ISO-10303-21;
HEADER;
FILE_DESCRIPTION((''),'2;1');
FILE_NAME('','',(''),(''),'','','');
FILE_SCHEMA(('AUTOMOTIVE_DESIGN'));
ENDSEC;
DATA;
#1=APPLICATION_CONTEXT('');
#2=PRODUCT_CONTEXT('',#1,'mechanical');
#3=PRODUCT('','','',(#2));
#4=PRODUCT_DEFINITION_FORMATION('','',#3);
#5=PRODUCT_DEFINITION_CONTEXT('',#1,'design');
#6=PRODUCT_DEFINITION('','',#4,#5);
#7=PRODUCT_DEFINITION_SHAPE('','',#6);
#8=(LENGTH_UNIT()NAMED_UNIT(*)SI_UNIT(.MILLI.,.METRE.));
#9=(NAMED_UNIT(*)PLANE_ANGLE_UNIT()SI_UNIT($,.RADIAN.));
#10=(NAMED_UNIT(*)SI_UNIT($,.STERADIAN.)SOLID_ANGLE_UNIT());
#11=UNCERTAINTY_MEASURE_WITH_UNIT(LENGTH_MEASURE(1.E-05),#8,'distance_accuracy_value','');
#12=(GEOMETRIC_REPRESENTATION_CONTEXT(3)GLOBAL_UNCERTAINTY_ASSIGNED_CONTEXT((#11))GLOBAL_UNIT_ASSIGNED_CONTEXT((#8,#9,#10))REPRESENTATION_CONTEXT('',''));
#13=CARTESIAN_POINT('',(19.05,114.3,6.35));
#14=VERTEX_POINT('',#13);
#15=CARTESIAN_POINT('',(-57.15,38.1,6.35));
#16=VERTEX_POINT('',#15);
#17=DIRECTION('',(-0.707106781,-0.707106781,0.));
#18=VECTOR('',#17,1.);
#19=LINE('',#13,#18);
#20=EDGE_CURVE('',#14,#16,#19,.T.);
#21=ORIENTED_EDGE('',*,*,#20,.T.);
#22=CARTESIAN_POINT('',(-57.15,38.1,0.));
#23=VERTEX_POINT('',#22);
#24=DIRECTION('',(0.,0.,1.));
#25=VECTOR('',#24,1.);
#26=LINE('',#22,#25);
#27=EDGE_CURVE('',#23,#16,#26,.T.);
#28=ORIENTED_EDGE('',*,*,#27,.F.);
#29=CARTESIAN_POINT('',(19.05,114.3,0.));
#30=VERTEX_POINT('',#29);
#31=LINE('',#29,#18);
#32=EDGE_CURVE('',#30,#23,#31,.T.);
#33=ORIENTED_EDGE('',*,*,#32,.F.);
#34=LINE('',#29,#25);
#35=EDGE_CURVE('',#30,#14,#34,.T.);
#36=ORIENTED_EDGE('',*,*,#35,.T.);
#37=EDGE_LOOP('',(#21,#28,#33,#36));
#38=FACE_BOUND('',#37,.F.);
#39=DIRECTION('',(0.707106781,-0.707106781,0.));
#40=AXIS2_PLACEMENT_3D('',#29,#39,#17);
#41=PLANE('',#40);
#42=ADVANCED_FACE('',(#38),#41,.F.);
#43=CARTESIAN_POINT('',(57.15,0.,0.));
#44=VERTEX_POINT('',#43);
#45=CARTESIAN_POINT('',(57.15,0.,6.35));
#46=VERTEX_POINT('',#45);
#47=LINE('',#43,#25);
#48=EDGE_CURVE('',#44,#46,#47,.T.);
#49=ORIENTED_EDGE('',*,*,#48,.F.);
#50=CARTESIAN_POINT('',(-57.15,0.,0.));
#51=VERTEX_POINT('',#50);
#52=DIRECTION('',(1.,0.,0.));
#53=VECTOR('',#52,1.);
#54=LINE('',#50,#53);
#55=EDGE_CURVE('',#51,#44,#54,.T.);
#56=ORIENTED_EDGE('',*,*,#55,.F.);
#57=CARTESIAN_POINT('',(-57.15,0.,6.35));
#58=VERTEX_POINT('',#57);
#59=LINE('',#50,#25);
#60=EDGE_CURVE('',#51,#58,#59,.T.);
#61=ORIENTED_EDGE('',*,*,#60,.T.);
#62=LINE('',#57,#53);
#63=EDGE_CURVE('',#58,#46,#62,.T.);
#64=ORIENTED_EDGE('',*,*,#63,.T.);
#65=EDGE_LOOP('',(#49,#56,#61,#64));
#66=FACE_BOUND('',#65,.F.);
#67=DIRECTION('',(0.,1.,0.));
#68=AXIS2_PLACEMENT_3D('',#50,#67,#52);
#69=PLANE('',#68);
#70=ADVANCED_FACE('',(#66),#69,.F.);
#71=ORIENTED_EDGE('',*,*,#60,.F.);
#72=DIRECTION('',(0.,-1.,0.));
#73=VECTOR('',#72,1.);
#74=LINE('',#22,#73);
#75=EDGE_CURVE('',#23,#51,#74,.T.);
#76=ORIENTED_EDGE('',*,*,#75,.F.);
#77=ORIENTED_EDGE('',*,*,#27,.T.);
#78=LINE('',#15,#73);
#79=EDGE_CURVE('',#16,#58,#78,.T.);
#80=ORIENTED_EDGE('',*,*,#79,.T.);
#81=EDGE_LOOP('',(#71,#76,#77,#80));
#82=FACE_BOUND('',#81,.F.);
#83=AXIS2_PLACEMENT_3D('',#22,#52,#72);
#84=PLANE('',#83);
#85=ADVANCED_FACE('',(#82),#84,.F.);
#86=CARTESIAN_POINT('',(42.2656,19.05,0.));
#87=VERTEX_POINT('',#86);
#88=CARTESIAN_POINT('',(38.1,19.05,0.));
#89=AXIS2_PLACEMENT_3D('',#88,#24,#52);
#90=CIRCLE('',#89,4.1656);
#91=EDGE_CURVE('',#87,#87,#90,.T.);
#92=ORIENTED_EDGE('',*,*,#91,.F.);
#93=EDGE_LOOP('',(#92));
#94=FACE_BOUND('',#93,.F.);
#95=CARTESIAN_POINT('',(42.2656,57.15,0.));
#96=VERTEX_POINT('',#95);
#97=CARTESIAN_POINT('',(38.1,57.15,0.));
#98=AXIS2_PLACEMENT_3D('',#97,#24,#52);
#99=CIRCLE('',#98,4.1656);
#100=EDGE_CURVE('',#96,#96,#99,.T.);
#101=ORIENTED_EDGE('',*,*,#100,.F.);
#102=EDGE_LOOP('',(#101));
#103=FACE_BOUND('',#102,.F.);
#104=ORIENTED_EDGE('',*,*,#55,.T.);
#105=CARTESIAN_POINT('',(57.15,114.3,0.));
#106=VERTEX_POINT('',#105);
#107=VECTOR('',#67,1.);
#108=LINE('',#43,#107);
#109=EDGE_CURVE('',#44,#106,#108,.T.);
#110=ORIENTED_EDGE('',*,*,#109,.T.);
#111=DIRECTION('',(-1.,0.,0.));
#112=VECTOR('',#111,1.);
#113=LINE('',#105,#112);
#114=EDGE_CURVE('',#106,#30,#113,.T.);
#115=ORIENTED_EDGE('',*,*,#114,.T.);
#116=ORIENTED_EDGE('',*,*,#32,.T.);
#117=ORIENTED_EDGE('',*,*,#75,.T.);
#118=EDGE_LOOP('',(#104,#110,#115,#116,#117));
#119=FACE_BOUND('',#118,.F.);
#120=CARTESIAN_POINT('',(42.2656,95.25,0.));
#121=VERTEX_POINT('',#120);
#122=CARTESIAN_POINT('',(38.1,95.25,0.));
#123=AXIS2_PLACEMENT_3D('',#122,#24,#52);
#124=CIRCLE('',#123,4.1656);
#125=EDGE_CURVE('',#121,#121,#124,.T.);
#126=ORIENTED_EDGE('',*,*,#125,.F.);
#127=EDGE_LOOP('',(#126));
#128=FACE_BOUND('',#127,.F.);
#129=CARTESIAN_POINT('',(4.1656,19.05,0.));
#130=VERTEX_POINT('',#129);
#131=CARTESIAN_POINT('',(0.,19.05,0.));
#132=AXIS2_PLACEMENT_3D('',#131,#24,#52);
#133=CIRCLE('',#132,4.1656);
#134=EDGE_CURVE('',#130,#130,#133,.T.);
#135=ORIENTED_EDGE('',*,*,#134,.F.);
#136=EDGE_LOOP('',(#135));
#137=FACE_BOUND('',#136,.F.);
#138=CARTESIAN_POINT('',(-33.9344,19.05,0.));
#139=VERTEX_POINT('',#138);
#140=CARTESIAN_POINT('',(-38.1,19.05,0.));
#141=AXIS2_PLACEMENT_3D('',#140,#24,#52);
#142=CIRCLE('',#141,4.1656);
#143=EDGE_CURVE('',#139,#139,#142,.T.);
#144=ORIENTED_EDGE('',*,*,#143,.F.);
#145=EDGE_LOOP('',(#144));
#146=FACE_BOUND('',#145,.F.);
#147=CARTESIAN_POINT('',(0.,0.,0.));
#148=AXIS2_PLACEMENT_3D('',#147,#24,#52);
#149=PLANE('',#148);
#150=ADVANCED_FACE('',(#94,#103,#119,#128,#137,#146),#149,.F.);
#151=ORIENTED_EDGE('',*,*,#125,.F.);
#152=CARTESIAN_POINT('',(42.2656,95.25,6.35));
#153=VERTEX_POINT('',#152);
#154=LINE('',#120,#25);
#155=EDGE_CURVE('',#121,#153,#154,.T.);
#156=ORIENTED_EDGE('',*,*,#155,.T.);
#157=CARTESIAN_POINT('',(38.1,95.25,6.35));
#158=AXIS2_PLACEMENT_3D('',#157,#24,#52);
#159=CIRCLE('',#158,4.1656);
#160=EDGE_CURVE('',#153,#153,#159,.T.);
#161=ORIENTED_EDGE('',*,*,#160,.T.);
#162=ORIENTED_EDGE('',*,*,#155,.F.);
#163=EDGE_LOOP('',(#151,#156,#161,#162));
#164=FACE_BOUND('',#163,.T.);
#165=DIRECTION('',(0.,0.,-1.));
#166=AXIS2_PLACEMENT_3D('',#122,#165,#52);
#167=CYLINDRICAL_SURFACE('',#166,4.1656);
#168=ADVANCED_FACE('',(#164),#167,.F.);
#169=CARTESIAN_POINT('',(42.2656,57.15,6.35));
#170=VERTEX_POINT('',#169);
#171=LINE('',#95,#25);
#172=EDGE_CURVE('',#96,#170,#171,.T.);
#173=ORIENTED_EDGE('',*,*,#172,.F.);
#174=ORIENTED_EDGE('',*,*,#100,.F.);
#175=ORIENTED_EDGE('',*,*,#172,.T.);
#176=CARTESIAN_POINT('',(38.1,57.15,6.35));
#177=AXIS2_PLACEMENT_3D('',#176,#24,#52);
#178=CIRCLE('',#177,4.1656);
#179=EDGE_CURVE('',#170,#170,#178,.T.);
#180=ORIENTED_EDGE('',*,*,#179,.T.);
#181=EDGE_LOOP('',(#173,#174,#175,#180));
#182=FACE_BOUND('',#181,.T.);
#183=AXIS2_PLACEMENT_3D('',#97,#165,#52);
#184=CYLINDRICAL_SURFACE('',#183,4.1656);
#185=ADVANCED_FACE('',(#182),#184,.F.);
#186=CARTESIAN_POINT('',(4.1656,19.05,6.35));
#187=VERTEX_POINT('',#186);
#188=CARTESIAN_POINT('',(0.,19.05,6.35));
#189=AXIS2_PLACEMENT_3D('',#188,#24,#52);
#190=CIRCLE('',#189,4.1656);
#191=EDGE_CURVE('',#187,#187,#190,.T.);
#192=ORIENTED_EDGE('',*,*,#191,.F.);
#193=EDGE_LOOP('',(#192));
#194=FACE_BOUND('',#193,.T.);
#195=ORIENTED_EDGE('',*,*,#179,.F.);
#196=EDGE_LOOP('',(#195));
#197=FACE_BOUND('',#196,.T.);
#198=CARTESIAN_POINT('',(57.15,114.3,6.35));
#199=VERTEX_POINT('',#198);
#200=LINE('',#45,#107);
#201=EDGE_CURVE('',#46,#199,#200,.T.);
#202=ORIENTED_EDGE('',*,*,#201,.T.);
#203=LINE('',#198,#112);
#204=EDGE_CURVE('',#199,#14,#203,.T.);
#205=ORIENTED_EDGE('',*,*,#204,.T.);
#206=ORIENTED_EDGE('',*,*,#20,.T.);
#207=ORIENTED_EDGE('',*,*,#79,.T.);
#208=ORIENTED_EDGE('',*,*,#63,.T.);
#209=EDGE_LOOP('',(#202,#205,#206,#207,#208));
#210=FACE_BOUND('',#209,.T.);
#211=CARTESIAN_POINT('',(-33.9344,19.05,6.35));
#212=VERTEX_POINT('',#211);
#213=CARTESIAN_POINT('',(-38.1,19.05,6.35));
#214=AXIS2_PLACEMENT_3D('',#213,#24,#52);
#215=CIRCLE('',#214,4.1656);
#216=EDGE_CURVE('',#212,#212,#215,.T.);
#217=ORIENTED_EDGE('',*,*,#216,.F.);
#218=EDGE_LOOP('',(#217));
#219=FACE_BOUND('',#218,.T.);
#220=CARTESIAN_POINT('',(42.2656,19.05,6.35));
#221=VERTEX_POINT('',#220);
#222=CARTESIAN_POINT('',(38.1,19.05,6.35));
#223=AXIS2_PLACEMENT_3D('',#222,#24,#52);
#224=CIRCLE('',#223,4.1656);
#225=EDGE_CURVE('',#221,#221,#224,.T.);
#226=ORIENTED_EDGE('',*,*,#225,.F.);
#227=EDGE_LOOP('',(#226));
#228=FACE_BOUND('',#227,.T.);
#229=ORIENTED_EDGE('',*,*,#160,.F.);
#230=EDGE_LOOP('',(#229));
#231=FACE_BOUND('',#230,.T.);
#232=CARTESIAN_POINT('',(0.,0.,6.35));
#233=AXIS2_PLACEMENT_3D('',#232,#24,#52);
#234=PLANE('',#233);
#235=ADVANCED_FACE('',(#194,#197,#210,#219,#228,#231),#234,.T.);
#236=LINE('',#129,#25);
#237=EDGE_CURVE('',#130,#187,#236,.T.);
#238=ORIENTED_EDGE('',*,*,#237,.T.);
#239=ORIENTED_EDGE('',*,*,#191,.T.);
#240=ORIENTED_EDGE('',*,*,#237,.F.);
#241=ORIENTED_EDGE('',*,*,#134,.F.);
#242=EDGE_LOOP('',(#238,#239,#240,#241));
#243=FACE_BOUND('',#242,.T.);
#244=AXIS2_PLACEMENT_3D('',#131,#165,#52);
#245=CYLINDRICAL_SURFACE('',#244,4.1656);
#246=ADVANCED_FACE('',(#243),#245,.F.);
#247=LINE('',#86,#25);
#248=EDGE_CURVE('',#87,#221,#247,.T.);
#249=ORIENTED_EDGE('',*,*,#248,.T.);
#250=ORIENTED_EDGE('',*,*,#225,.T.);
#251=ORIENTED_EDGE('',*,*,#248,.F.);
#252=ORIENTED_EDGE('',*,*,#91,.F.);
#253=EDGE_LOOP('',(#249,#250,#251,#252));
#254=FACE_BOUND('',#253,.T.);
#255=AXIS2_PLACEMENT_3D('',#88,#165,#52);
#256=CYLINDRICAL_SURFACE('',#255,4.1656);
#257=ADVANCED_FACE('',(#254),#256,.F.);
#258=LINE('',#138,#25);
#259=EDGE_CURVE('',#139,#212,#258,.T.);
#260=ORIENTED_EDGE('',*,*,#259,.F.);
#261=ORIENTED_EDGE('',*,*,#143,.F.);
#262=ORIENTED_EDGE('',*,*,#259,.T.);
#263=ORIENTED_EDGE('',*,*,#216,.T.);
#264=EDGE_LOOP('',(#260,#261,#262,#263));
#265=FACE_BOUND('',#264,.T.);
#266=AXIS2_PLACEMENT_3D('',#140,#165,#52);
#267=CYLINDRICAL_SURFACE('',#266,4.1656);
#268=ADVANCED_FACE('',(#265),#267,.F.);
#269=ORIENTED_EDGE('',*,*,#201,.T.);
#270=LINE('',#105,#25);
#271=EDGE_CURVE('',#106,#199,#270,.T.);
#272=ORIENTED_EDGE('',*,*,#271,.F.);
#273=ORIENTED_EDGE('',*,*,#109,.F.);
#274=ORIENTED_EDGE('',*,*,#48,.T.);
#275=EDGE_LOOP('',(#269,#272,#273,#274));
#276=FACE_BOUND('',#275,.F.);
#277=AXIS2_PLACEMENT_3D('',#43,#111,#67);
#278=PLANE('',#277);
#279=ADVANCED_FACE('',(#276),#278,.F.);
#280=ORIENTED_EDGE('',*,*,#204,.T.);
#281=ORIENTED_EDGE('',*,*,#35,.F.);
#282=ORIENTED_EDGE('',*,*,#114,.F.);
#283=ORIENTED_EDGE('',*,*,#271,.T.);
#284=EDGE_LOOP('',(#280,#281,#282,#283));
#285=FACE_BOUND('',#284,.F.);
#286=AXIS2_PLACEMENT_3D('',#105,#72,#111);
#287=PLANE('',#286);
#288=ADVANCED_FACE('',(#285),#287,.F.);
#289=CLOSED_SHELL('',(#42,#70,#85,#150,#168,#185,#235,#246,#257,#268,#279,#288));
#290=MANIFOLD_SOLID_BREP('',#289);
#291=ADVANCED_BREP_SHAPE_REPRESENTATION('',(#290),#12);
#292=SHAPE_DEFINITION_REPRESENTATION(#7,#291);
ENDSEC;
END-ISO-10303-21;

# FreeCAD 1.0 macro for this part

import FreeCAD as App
import Part
import Sketcher

V = App.Vector
Q = App.Units.Quantity

doc = App.newDocument("Part")
params = doc.addObject("Spreadsheet::Sheet", "Params")
for row, (alias, value) in enumerate([
    ("sketch1_diameter", "0.328 in"),
    ("sketch1_width", "4.5 in"),
    ("sketch1_width2", "1.5 in"),
    ("pad1_length", "0.25 in"),
], start=1):
    params.set(f"A{row}", alias)
    params.set(f"B{row}", "=" + value)
    params.setAlias(f"B{row}", alias)

body = doc.addObject("PartDesign::Body", "Body")

# Sketch on XY plane
sketch1 = doc.addObject("Sketcher::SketchObject", "Sketch")
body.addObject(sketch1)
sketch1.AttachmentSupport = (doc.XY_Plane, [""])
sketch1.MapMode = "FlatFace"
sketch1.addGeometry(Part.LineSegment(V(19.1, 114.3, 0), V(-57.1, 38.1, 0)), False)
sketch1.addGeometry(Part.LineSegment(V(-57.1, 38.1, 0), V(-57.1, 0, 0)), False)
sketch1.addGeometry(Part.LineSegment(V(-57.1, 0, 0), V(57.1, 0, 0)), False)
sketch1.addGeometry(Part.LineSegment(V(57.1, 0, 0), V(57.1, 114.3, 0)), False)
sketch1.addGeometry(Part.LineSegment(V(57.1, 114.3, 0), V(19.1, 114.3, 0)), False)
sketch1.addGeometry(Part.Circle(V(-38.1, 19.1, 0), V(0, 0, 1), 4.2), False)
sketch1.addGeometry(Part.Circle(V(0, 19.1, 0), V(0, 0, 1), 4.2), False)
sketch1.addGeometry(Part.Circle(V(38.1, 19.1, 0), V(0, 0, 1), 4.2), False)
sketch1.addGeometry(Part.Circle(V(38.1, 57.1, 0), V(0, 0, 1), 4.2), False)
sketch1.addGeometry(Part.Circle(V(38.1, 95.2, 0), V(0, 0, 1), 4.2), False)
sketch1.addConstraint(Sketcher.Constraint("Coincident", 0, 2, 1, 1))
sketch1.addConstraint(Sketcher.Constraint("Coincident", 1, 2, 2, 1))
sketch1.addConstraint(Sketcher.Constraint("Coincident", 2, 2, 3, 1))
sketch1.addConstraint(Sketcher.Constraint("Coincident", 3, 2, 4, 1))
sketch1.addConstraint(Sketcher.Constraint("Coincident", 4, 2, 0, 1))
sketch1.addConstraint(Sketcher.Constraint("Vertical", 1))
sketch1.addConstraint(Sketcher.Constraint("Horizontal", 2))
sketch1.addConstraint(Sketcher.Constraint("Vertical", 3))
sketch1.addConstraint(Sketcher.Constraint("Horizontal", 4))
sketch1.addConstraint(Sketcher.Constraint("Equal", 5, 6))
sketch1.addConstraint(Sketcher.Constraint("Equal", 6, 7))
sketch1.addConstraint(Sketcher.Constraint("Equal", 7, 8))
sketch1.addConstraint(Sketcher.Constraint("Equal", 8, 9))
sketch1.addConstraint(Sketcher.Constraint("Symmetric", 1, 2, 2, 2, -1, 1))
sketch1.addConstraint(Sketcher.Constraint("Symmetric", 5, 3, 7, 3, -2))
sketch1.addConstraint(Sketcher.Constraint("PointOnObject", 6, 3, -2))
sketch1.addConstraint(Sketcher.Constraint("Horizontal", 5, 3, 6, 3))
sketch1.addConstraint(Sketcher.Constraint("Vertical", 7, 3, 8, 3))
sketch1.addConstraint(Sketcher.Constraint("Vertical", 8, 3, 9, 3))
sketch1.addConstraint(Sketcher.Constraint("Equal", 4, 1))
sketch1.addConstraint(Sketcher.Constraint("Equal", 2, 3))
sketch1.addConstraint(Sketcher.Constraint("Diameter", 5, Q("0.328 in")))
sketch1.addConstraint(Sketcher.Constraint("DistanceX", 2, 1, 2, 2, Q("4.5 in")))
sketch1.addConstraint(Sketcher.Constraint("DistanceX", 4, 2, 4, 1, Q("1.5 in")))
sketch1.addConstraint(Sketcher.Constraint("DistanceX", 5, 3, 7, 3, Q("3 in")))
sketch1.addConstraint(Sketcher.Constraint("DistanceY", 7, 3, 9, 3, Q("3 in")))
sketch1.addConstraint(Sketcher.Constraint("DistanceY", 7, 3, 8, 3, Q("1.5 in")))
sketch1.addConstraint(Sketcher.Constraint("DistanceY", -1, 1, 5, 3, Q("0.75 in")))
sketch1.setExpression("Constraints[21]", "Params.sketch1_diameter")
sketch1.setExpression("Constraints[22]", "Params.sketch1_width")
sketch1.setExpression("Constraints[23]", "Params.sketch1_width2")
pad1 = doc.addObject("PartDesign::Pad", "Pad")
body.addObject(pad1)
pad1.Profile = sketch1
pad1.setExpression("Length", "Params.pad1_length")

doc.recompute()
